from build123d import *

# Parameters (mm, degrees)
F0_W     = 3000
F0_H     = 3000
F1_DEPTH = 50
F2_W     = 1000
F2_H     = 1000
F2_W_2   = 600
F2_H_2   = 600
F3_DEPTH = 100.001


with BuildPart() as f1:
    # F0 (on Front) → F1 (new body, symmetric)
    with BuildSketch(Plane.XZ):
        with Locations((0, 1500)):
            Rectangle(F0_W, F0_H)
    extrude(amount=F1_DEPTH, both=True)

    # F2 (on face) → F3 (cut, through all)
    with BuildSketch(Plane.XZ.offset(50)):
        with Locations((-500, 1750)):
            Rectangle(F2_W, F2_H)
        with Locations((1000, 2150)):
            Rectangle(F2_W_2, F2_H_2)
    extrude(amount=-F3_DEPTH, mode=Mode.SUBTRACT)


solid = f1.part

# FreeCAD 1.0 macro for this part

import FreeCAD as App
import Part
import Sketcher

doc = App.newDocument("Part")
body = doc.addObject("PartDesign::Body", "Body")

sketch1 = body.newObject("Sketcher::SketchObject", "Sketch")
sketch1.AttachmentSupport = (doc.getObject("XZ_Plane"), [""])
sketch1.MapMode = "FlatFace"
sketch1.addGeometry(Part.LineSegment(App.Vector(-1500, 3000, 0), App.Vector(-1500, 0, 0)), False)
sketch1.addGeometry(Part.LineSegment(App.Vector(-1500, 0, 0), App.Vector(1500, 0, 0)), False)
sketch1.addGeometry(Part.LineSegment(App.Vector(1500, 0, 0), App.Vector(1500, 3000, 0)), False)
sketch1.addGeometry(Part.LineSegment(App.Vector(1500, 3000, 0), App.Vector(-1500, 3000, 0)), False)
sketch1.addConstraint(Sketcher.Constraint("Coincident", 0, 2, 1, 1))
sketch1.addConstraint(Sketcher.Constraint("Coincident", 1, 2, 2, 1))
sketch1.addConstraint(Sketcher.Constraint("Coincident", 2, 2, 3, 1))
sketch1.addConstraint(Sketcher.Constraint("Coincident", 3, 2, 0, 1))
sketch1.addConstraint(Sketcher.Constraint("Vertical", 0))
sketch1.addConstraint(Sketcher.Constraint("Horizontal", 1))
sketch1.addConstraint(Sketcher.Constraint("Vertical", 2))
sketch1.addConstraint(Sketcher.Constraint("Horizontal", 3))
sketch1.addConstraint(Sketcher.Constraint("Symmetric", 0, 2, 1, 2, -1, 1))
sketch1.addConstraint(Sketcher.Constraint("Equal", 3, 0))
sketch1.addConstraint(Sketcher.Constraint("DistanceX", 1, 1, 1, 2, 3000.0))
pad1 = body.newObject("PartDesign::Pad", "Pad")
pad1.Profile = sketch1
pad1.Length = 100
pad1.Midplane = True

sketch2 = body.newObject("Sketcher::SketchObject", "Sketch001")
sketch2.AttachmentSupport = (doc.getObject("XZ_Plane"), [""])
sketch2.MapMode = "FlatFace"
sketch2.AttachmentOffset = App.Placement(App.Vector(0, 0, 50), App.Rotation())
sketch2.addGeometry(Part.LineSegment(App.Vector(-1000, 2250, 0), App.Vector(-1000, 1250, 0)), False)
sketch2.addGeometry(Part.LineSegment(App.Vector(-1000, 1250, 0), App.Vector(0, 1250, 0)), False)
sketch2.addGeometry(Part.LineSegment(App.Vector(0, 1250, 0), App.Vector(0, 2250, 0)), False)
sketch2.addGeometry(Part.LineSegment(App.Vector(0, 2250, 0), App.Vector(-1000, 2250, 0)), False)
sketch2.addGeometry(Part.LineSegment(App.Vector(700, 2450, 0), App.Vector(700, 1850, 0)), False)
sketch2.addGeometry(Part.LineSegment(App.Vector(700, 1850, 0), App.Vector(1300, 1850, 0)), False)
sketch2.addGeometry(Part.LineSegment(App.Vector(1300, 1850, 0), App.Vector(1300, 2450, 0)), False)
sketch2.addGeometry(Part.LineSegment(App.Vector(1300, 2450, 0), App.Vector(700, 2450, 0)), False)
sketch2.addConstraint(Sketcher.Constraint("Coincident", 0, 2, 1, 1))
sketch2.addConstraint(Sketcher.Constraint("Coincident", 1, 2, 2, 1))
sketch2.addConstraint(Sketcher.Constraint("Coincident", 2, 2, 3, 1))
sketch2.addConstraint(Sketcher.Constraint("Coincident", 3, 2, 0, 1))
sketch2.addConstraint(Sketcher.Constraint("Coincident", 4, 2, 5, 1))
sketch2.addConstraint(Sketcher.Constraint("Coincident", 5, 2, 6, 1))
sketch2.addConstraint(Sketcher.Constraint("Coincident", 6, 2, 7, 1))
sketch2.addConstraint(Sketcher.Constraint("Coincident", 7, 2, 4, 1))
sketch2.addConstraint(Sketcher.Constraint("Vertical", 0))
sketch2.addConstraint(Sketcher.Constraint("Horizontal", 1))
sketch2.addConstraint(Sketcher.Constraint("Vertical", 2))
sketch2.addConstraint(Sketcher.Constraint("Horizontal", 3))
sketch2.addConstraint(Sketcher.Constraint("Vertical", 4))
sketch2.addConstraint(Sketcher.Constraint("Horizontal", 5))
sketch2.addConstraint(Sketcher.Constraint("Vertical", 6))
sketch2.addConstraint(Sketcher.Constraint("Horizontal", 7))
sketch2.addConstraint(Sketcher.Constraint("PointOnObject", 1, 2, -2))
sketch2.addConstraint(Sketcher.Constraint("Equal", 3, 0))
sketch2.addConstraint(Sketcher.Constraint("Equal", 7, 4))
sketch2.addConstraint(Sketcher.Constraint("DistanceX", 1, 1, 1, 2, 1000.0))
sketch2.addConstraint(Sketcher.Constraint("DistanceX", 5, 1, 5, 2, 600.0))
sketch2.addConstraint(Sketcher.Constraint("DistanceY", -1, 1, 0, 2, 1250.0))
sketch2.addConstraint(Sketcher.Constraint("DistanceX", -1, 1, 4, 2, 700.0))
sketch2.addConstraint(Sketcher.Constraint("DistanceY", -1, 1, 4, 2, 1850.0))
pocket1 = body.newObject("PartDesign::Pocket", "Pocket")
pocket1.Profile = sketch2
pocket1.Type = "ThroughAll"

doc.recompute()
